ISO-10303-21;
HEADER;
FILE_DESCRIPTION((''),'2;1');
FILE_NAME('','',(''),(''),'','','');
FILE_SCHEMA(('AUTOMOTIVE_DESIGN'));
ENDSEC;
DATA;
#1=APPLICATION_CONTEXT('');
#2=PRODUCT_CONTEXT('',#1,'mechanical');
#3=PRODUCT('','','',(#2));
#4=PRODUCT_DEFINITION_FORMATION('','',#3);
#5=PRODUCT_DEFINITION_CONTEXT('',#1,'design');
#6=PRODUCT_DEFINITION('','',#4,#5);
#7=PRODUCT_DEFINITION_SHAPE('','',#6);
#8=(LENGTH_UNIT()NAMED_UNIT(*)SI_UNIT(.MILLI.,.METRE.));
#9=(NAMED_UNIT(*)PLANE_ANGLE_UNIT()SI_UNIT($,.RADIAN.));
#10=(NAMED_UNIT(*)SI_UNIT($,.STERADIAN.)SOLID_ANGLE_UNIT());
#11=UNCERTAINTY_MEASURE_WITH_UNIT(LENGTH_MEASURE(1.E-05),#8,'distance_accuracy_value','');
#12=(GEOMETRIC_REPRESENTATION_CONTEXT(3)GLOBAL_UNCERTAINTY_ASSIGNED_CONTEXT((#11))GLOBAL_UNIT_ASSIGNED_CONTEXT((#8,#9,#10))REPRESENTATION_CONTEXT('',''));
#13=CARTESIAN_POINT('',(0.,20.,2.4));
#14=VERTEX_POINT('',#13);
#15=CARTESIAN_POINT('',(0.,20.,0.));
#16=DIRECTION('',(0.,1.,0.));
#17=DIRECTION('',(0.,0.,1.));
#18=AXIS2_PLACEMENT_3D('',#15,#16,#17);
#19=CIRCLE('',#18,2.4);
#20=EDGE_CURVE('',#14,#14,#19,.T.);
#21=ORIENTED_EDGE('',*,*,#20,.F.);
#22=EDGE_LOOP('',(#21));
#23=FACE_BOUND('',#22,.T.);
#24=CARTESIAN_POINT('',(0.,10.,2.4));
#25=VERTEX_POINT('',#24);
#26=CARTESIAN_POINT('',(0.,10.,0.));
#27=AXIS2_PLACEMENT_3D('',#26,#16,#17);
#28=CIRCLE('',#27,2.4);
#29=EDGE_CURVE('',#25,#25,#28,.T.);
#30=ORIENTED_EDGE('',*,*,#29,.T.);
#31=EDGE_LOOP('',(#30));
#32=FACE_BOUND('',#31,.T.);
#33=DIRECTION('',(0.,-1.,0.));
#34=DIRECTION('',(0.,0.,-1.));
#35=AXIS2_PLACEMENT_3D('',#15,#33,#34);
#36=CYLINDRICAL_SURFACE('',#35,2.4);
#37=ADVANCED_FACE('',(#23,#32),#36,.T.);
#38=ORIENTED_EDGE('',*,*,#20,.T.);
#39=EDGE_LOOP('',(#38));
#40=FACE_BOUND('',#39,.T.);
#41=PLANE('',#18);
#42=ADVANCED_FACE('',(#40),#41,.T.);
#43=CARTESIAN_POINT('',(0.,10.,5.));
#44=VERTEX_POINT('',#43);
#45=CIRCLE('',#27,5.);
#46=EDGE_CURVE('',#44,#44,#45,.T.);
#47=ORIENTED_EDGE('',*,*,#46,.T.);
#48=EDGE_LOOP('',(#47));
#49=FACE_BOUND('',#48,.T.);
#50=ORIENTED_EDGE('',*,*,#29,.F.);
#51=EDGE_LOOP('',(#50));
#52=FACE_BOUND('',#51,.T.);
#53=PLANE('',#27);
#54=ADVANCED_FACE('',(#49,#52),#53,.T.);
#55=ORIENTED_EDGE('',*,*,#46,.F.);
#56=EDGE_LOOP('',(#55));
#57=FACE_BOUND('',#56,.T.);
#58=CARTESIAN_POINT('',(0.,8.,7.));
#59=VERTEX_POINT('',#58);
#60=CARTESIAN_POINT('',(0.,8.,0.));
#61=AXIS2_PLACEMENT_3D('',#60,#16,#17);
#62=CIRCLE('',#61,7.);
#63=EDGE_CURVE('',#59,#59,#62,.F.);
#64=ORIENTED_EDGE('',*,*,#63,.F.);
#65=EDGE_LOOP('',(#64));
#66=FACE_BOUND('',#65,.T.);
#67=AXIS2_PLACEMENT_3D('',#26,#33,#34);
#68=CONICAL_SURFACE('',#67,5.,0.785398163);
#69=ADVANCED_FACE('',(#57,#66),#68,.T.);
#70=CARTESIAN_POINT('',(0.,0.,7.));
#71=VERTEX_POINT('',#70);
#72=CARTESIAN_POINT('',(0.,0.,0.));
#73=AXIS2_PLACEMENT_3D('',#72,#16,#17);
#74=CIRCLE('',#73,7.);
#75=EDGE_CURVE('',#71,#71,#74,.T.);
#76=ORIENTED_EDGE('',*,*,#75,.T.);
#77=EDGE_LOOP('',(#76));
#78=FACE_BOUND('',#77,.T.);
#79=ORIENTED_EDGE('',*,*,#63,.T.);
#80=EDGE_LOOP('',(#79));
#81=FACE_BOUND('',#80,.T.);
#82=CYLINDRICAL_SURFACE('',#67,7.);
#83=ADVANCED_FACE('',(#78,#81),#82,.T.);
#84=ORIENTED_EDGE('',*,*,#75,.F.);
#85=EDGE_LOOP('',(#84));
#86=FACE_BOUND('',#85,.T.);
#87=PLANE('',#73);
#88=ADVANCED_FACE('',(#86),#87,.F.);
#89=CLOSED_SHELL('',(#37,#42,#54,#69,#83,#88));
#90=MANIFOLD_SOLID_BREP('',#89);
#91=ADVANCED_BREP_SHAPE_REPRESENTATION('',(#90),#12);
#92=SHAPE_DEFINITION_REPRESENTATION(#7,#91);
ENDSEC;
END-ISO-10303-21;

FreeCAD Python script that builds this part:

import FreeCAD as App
import Part
import Sketcher
from FreeCAD import Vector


def edges_at(feature, points):
    """Names of the edges that pass closest to the given points."""
    edges = feature.Shape.Edges
    near = lambda p: min(range(len(edges)), key=lambda i: edges[i].distToShape(Part.Vertex(*p))[0])
    return sorted({f"Edge{near(p) + 1}" for p in points})

doc = App.newDocument("Part")
body = doc.addObject("PartDesign::Body", "Body")

# Sketch on XZ plane
sketch1 = body.newObject("Sketcher::SketchObject", "Sketch")
sketch1.AttachmentSupport = (doc.getObject("XZ_Plane"), [""])
sketch1.MapMode = "FlatFace"
sketch1.addGeometry(Part.Circle(Vector(0, 0, 0), Vector(0, 0, 1), 7), False)
sketch1.addConstraint([
    Sketcher.Constraint("Coincident", 0, 3, -1, 1),
    Sketcher.Constraint("Diameter", 0, 14.0),
])
pad1 = body.newObject("PartDesign::Pad", "Pad")
pad1.Profile = sketch1
pad1.Length = 10
pad1.Reversed = True
doc.recompute()

chamfer = body.newObject("PartDesign::Chamfer", "Chamfer")
chamfer.Base = (pad1, edges_at(pad1, [(0, 10, -7)]))
chamfer.Size = 2

# Sketch on XZ plane
sketch2 = body.newObject("Sketcher::SketchObject", "Sketch001")
sketch2.AttachmentSupport = (doc.getObject("XZ_Plane"), [""])
sketch2.MapMode = "FlatFace"
sketch2.AttachmentOffset = App.Placement(Vector(0, 0, -10), App.Rotation())
sketch2.addGeometry(Part.Circle(Vector(0, 0, 0), Vector(0, 0, 1), 2.4), False)
sketch2.addConstraint([
    Sketcher.Constraint("Coincident", 0, 3, -1, 1),
    Sketcher.Constraint("Diameter", 0, 4.8),
])
pad2 = body.newObject("PartDesign::Pad", "Pad001")
pad2.Profile = sketch2
pad2.Length = 10
pad2.Reversed = True

doc.recompute()
